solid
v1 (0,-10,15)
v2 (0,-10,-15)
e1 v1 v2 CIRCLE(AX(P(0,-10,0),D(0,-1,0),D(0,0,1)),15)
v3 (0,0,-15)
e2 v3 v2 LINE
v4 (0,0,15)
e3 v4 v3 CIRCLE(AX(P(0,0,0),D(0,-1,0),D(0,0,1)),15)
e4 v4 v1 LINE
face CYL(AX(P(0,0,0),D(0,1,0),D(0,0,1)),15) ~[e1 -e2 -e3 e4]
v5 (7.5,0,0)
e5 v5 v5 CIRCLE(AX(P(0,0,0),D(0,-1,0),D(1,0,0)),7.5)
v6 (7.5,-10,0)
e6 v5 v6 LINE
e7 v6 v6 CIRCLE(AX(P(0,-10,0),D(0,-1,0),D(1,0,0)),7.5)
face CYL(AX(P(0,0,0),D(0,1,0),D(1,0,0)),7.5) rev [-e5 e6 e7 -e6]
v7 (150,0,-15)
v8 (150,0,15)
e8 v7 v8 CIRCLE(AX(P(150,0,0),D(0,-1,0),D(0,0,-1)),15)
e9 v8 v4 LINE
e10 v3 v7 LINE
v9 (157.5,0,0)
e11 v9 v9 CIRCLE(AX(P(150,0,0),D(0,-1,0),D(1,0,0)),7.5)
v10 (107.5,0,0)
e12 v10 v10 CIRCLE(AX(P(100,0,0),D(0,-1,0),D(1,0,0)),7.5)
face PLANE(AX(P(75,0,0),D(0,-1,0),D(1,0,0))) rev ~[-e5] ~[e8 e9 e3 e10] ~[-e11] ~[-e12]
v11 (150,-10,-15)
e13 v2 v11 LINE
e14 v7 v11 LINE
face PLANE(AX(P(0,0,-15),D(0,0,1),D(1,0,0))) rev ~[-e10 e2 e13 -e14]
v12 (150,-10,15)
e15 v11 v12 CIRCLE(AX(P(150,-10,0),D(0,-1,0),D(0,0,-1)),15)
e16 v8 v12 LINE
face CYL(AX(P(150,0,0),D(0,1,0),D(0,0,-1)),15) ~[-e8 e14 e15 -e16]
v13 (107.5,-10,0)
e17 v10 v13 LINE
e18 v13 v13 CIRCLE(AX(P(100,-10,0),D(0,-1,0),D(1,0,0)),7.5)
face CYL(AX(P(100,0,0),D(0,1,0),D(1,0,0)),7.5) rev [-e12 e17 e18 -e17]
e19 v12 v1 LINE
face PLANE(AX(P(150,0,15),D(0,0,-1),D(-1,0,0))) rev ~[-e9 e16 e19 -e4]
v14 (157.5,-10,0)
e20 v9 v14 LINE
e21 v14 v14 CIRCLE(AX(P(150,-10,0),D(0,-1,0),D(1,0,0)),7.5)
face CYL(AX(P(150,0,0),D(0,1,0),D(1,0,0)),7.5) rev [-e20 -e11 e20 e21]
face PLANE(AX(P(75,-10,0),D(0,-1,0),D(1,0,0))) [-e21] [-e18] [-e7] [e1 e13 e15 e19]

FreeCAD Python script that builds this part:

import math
import FreeCAD as App
import Part
import Sketcher
from FreeCAD import Vector
Q = App.Units.Quantity

doc = App.newDocument("Part")
body = doc.addObject("PartDesign::Body", "Body")

# Sketch on XZ plane
sketch1 = doc.addObject("Sketcher::SketchObject", "Sketch")
body.addObject(sketch1)
sketch1.AttachmentSupport = (doc.XZ_Plane, [""])
sketch1.MapMode = "FlatFace"
sketch1.addGeometry(Part.LineSegment(Vector(150, 15, 0), Vector(0, 15, 0)), False)
sketch1.addGeometry(Part.ArcOfCircle(Part.Circle(Vector(0, 0, 0), Vector(0, 0, 1), 15), math.radians(90), math.radians(270)), False)
sketch1.addGeometry(Part.LineSegment(Vector(0, -15, 0), Vector(150, -15, 0)), False)
sketch1.addGeometry(Part.ArcOfCircle(Part.Circle(Vector(150, 0, 0), Vector(0, 0, 1), 15), math.radians(-90), math.radians(90)), False)
sketch1.addGeometry(Part.Circle(Vector(0, 0, 0), Vector(0, 0, 1), 8), False)
sketch1.addGeometry(Part.Circle(Vector(100, 0, 0), Vector(0, 0, 1), 8), False)
sketch1.addGeometry(Part.Circle(Vector(150, 0, 0), Vector(0, 0, 1), 8), False)
sketch1.addConstraint(Sketcher.Constraint("Tangent", 0, 2, 1, 1))
sketch1.addConstraint(Sketcher.Constraint("Tangent", 1, 2, 2, 1))
sketch1.addConstraint(Sketcher.Constraint("Tangent", 2, 2, 3, 1))
sketch1.addConstraint(Sketcher.Constraint("Tangent", 3, 2, 0, 1))
sketch1.addConstraint(Sketcher.Constraint("Horizontal", 0))
sketch1.addConstraint(Sketcher.Constraint("Horizontal", 2))
sketch1.addConstraint(Sketcher.Constraint("Coincident", 1, 3, -1, 1))
sketch1.addConstraint(Sketcher.Constraint("Coincident", 4, 3, -1, 1))
sketch1.addConstraint(Sketcher.Constraint("Coincident", 6, 3, 3, 3))
sketch1.addConstraint(Sketcher.Constraint("Equal", 4, 5))
sketch1.addConstraint(Sketcher.Constraint("Equal", 5, 6))
sketch1.addConstraint(Sketcher.Constraint("PointOnObject", 5, 3, -1))
sketch1.addConstraint(Sketcher.Constraint("Diameter", 4, Q("15 mm")))
sketch1.addConstraint(Sketcher.Constraint("Radius", 1, Q("15 mm")))
sketch1.addConstraint(Sketcher.Constraint("DistanceX", 0, 2, 0, 1, Q("150 mm")))
sketch1.addConstraint(Sketcher.Constraint("DistanceX", -1, 1, 5, 3, Q("100 mm")))
pad1 = doc.addObject("PartDesign::Pad", "Pad")
body.addObject(pad1)
pad1.Profile = sketch1
pad1.Length = 10

doc.recompute()
